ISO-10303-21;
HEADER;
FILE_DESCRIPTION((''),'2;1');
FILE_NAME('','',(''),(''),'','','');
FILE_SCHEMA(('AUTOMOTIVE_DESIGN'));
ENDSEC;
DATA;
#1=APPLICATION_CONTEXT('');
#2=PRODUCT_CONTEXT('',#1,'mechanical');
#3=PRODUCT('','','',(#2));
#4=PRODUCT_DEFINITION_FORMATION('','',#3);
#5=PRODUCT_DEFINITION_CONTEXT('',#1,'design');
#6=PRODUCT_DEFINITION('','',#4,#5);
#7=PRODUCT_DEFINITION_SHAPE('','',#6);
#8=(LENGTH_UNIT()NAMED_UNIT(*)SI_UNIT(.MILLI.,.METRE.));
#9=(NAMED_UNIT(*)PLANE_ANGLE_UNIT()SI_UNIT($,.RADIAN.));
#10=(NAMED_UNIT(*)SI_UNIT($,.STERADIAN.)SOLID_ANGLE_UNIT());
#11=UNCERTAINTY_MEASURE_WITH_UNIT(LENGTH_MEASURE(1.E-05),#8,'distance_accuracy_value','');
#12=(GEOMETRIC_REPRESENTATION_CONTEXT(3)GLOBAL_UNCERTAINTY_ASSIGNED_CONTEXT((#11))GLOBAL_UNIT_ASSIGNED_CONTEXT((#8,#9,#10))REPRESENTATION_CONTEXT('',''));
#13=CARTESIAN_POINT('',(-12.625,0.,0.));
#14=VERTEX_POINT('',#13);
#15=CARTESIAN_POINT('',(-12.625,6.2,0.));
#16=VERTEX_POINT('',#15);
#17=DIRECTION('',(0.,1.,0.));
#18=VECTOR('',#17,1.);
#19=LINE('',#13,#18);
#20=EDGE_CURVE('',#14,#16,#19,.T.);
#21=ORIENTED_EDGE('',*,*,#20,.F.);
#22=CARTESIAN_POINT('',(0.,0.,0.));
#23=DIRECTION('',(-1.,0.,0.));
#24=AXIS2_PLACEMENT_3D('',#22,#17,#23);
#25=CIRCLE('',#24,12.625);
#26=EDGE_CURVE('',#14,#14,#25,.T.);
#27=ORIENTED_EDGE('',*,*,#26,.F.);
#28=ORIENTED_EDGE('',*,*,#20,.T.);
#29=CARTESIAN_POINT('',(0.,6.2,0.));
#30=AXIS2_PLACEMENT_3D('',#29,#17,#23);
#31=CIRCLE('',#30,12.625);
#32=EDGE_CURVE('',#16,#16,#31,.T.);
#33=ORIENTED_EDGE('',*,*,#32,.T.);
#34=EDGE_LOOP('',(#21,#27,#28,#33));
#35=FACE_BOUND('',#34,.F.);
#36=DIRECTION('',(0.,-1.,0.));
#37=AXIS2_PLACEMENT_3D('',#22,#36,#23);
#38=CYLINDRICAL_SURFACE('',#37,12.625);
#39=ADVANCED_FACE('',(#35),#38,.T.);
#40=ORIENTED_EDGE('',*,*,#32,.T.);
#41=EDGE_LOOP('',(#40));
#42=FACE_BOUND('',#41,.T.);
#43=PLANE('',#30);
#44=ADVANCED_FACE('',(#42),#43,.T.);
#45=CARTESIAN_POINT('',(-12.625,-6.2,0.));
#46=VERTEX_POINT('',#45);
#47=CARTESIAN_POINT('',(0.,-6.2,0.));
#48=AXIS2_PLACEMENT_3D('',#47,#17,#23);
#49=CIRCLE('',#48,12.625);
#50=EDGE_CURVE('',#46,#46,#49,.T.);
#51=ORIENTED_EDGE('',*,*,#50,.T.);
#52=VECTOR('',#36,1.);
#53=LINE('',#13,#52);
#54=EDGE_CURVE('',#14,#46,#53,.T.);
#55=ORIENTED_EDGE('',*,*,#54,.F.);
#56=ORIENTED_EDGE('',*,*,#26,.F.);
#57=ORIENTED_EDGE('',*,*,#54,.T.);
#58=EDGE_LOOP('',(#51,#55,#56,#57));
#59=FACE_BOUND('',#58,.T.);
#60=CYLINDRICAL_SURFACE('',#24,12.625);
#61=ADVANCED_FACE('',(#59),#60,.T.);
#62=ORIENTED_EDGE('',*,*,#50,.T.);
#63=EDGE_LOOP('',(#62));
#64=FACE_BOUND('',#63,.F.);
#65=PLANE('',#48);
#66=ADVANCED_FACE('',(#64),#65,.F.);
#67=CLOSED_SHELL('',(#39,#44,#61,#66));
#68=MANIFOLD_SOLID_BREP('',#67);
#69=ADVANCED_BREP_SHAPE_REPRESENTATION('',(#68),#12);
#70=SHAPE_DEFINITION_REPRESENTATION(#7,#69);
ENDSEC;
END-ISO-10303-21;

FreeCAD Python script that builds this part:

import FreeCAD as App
import Part
import Sketcher
from FreeCAD import Vector

doc = App.newDocument("Part")
params = doc.addObject("Spreadsheet::Sheet", "Params")
for row, (alias, value) in enumerate([
    ("sketch1_diameter", "25.25 mm"),
    ("pad1_length", "12.4 mm"),
], start=1):
    params.set(f"A{row}", alias)
    params.set(f"B{row}", "=" + value)
    params.setAlias(f"B{row}", alias)

body = doc.addObject("PartDesign::Body", "Body")

sketch1 = body.newObject("Sketcher::SketchObject", "Sketch")
sketch1.AttachmentSupport = (doc.getObject("XZ_Plane"), [""])
sketch1.MapMode = "FlatFace"
sketch1.addGeometry(Part.Circle(Vector(0, 0, 0), Vector(0, 0, 1), 13), False)
sketch1.addConstraint(Sketcher.Constraint("Coincident", 0, 3, -1, 1))
sketch1.addConstraint(Sketcher.Constraint("Diameter", 0, 25.25))
sketch1.setExpression("Constraints[1]", "Params.sketch1_diameter")
pad1 = body.newObject("PartDesign::Pad", "Pad")
pad1.Profile = sketch1
pad1.setExpression("Length", "Params.pad1_length")
pad1.Midplane = True

doc.recompute()
